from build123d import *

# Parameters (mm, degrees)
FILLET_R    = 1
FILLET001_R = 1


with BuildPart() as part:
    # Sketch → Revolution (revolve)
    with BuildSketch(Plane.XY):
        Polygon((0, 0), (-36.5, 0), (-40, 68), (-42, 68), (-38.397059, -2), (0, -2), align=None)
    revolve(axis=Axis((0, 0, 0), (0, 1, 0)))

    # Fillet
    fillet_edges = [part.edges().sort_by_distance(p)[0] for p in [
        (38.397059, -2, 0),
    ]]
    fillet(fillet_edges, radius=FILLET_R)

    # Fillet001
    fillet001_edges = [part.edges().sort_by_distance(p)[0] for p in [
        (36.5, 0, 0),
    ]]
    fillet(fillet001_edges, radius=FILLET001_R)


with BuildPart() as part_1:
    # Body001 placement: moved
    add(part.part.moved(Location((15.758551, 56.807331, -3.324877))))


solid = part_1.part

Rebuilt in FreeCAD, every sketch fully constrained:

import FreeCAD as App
import Part
import Sketcher

V = App.Vector
Q = App.Units.Quantity


def edges_at(feature, points):
    """Names of the edges that pass closest to the given points."""
    edges = feature.Shape.Edges
    near = lambda p: min(range(len(edges)), key=lambda i: edges[i].distToShape(Part.Vertex(*p))[0])
    return sorted({f"Edge{near(p) + 1}" for p in points})


def add_polygon(sketch, points):
    """Adds a closed chain of lines whose ends are joined by coincident constraints."""
    first, n = sketch.GeometryCount, len(points)
    for a, b in zip(points, points[1:] + points[:1]):
        sketch.addGeometry(Part.LineSegment(App.Vector(*a, 0), App.Vector(*b, 0)), False)
    for i in range(n):
        sketch.addConstraint(Sketcher.Constraint("Coincident", first + i, 2, first + (i + 1) % n, 1))

doc = App.newDocument("Part")
params = doc.addObject("Spreadsheet::Sheet", "Params")
for row, (alias, value) in enumerate([
    ("sketch1_width", "2 mm"),
    ("sketch1_width2", "36.5 mm"),
    ("revolution_angle", "360 deg"),
    ("fillet_radius", "1 mm"),
    ("fillet2_radius", "1 mm"),
], start=1):
    params.set(f"A{row}", alias)
    params.set(f"B{row}", "=" + value)
    params.setAlias(f"B{row}", alias)

body = doc.addObject("PartDesign::Body", "Body")

# Sketch on XY plane
sketch1 = body.newObject("Sketcher::SketchObject", "Sketch")
sketch1.AttachmentSupport = (doc.getObject("XY_Plane"), [""])
sketch1.MapMode = "FlatFace"
add_polygon(sketch1, [(0, 0), (-36.5, 0), (-40, 68), (-42, 68), (-38.4, -2), (0, -2)])  # lines 0-5
sketch1.addConstraint([
    Sketcher.Constraint("Horizontal", 0),
    Sketcher.Constraint("Horizontal", 2),
    Sketcher.Constraint("Horizontal", 4),
    Sketcher.Constraint("Vertical", 5),
    Sketcher.Constraint("Coincident", 5, 2, -1, 1),
    Sketcher.Constraint("Parallel", 1, 3),
    Sketcher.Constraint("Equal", 2, 5),
    Sketcher.Constraint("DistanceX", 2, 2, 2, 1, Q("2 mm")),
    Sketcher.Constraint("DistanceX", 0, 2, 0, 1, Q("36.5 mm")),
    Sketcher.Constraint("DistanceX", 1, 2, -1, 1, Q("40 mm")),
    Sketcher.Constraint("DistanceY", -1, 1, 1, 2, Q("68 mm")),
])
sketch1.setExpression("Constraints[13]", "Params.sketch1_width")
sketch1.setExpression("Constraints[14]", "Params.sketch1_width2")
revolution = body.newObject("PartDesign::Revolution", "Revolution")
revolution.Profile = sketch1
revolution.ReferenceAxis = (sketch1, ["V_Axis"])
revolution.setExpression("Angle", "Params.revolution_angle")
doc.recompute()

fillet = body.newObject("PartDesign::Fillet", "Fillet")
fillet.Base = (revolution, edges_at(revolution, [(38.397, -2, 0)]))
fillet.setExpression("Radius", "Params.fillet_radius")
doc.recompute()

fillet2 = body.newObject("PartDesign::Fillet", "Fillet001")
fillet2.Base = (fillet, edges_at(fillet, [(36.5, 0, 0)]))
fillet2.setExpression("Radius", "Params.fillet2_radius")
body2 = doc.addObject("PartDesign::Body", "Body001")
doc.recompute()

body.Placement = App.Placement(V(15.758551, 56.807331, -3.324877), App.Rotation(V(0, 0, 1), 0))
boolean = body2.newObject("PartDesign::Boolean", "Boolean")
boolean.Type = "Fuse"
boolean.addObjects([body])

doc.recompute()
